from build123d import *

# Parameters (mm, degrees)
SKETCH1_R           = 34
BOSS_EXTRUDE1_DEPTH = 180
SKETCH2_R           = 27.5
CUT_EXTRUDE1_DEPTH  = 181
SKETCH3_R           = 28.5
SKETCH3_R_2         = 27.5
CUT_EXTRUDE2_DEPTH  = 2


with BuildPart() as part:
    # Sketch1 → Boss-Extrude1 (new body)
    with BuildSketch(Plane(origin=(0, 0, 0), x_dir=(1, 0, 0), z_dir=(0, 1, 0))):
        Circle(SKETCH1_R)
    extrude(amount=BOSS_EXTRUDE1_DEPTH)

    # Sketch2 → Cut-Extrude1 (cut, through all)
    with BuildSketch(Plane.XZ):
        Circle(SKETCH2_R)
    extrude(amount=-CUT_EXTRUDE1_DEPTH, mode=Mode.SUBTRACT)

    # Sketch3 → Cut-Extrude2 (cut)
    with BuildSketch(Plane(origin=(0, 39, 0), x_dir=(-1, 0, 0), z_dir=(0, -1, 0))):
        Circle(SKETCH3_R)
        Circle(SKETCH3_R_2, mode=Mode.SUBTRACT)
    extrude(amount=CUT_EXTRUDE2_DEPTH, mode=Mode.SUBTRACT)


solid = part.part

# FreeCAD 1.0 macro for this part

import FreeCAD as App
import Part
import Sketcher

V = App.Vector

doc = App.newDocument("Part")
body = doc.addObject("PartDesign::Body", "Body")

sketch1 = body.newObject("Sketcher::SketchObject", "Sketch")
sketch1.AttachmentSupport = (doc.getObject("XZ_Plane"), [""])
sketch1.MapMode = "FlatFace"
sketch1.addGeometry(Part.Circle(V(0, 0, 0), V(0, 0, 1), 34), False)
sketch1.addConstraint(Sketcher.Constraint("Coincident", 0, 3, -1, 1))
sketch1.addConstraint(Sketcher.Constraint("Diameter", 0, 68.0))
pad1 = body.newObject("PartDesign::Pad", "Pad")
pad1.Profile = sketch1
pad1.Length = 180
pad1.Reversed = True

sketch2 = body.newObject("Sketcher::SketchObject", "Sketch001")
sketch2.AttachmentSupport = (doc.getObject("XZ_Plane"), [""])
sketch2.MapMode = "FlatFace"
sketch2.addGeometry(Part.Circle(V(0, 0, 0), V(0, 0, 1), 28), False)
sketch2.addConstraint(Sketcher.Constraint("Coincident", 0, 3, -1, 1))
sketch2.addConstraint(Sketcher.Constraint("Diameter", 0, 55.0))
pocket1 = body.newObject("PartDesign::Pocket", "Pocket")
pocket1.Profile = sketch2
pocket1.Type = "ThroughAll"

sketch3 = body.newObject("Sketcher::SketchObject", "Sketch002")
sketch3.AttachmentSupport = (doc.getObject("XZ_Plane"), [""])
sketch3.MapMode = "FlatFace"
sketch3.AttachmentOffset = App.Placement(V(0, 0, -39), App.Rotation())
sketch3.addGeometry(Part.Circle(V(0, 0, 0), V(0, 0, 1), 28), False)
sketch3.addGeometry(Part.Circle(V(0, 0, 0), V(0, 0, 1), 28), False)
sketch3.addConstraint(Sketcher.Constraint("Coincident", 0, 3, -1, 1))
sketch3.addConstraint(Sketcher.Constraint("Coincident", 1, 3, -1, 1))
sketch3.addConstraint(Sketcher.Constraint("Diameter", 0, 57.0))
sketch3.addConstraint(Sketcher.Constraint("Diameter", 1, 55.0))
pocket2 = body.newObject("PartDesign::Pocket", "Pocket001")
pocket2.Profile = sketch3
pocket2.Length = 2
pocket2.Reversed = True

doc.recompute()
